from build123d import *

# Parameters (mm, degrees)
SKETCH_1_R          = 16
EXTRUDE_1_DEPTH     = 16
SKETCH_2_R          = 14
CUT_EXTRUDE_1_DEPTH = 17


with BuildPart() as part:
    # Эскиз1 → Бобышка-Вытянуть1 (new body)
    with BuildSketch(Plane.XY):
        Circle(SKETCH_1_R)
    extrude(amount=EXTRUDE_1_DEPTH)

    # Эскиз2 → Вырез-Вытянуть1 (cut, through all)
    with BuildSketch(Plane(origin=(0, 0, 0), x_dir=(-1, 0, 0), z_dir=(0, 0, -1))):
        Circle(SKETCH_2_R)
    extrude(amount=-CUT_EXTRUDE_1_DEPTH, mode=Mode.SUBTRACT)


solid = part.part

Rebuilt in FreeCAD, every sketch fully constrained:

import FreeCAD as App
import Part
import Sketcher

doc = App.newDocument("Part")
params = doc.addObject("Spreadsheet::Sheet", "Params")
for row, (alias, value) in enumerate([
    ("sketch1_diameter", "32 mm"),
    ("pad1_length", "16 mm"),
    ("sketch2_diameter", "28 mm"),
], start=1):
    params.set(f"A{row}", alias)
    params.set(f"B{row}", "=" + value)
    params.setAlias(f"B{row}", alias)

body = doc.addObject("PartDesign::Body", "Body")

# Sketch on XY plane
sketch1 = body.newObject("Sketcher::SketchObject", "Sketch")
sketch1.AttachmentSupport = (doc.getObject("XY_Plane"), [""])
sketch1.MapMode = "FlatFace"
sketch1.addGeometry(Part.Circle(App.Vector(0, 0, 0), App.Vector(0, 0, 1), 16), False)
sketch1.addConstraint(Sketcher.Constraint("Coincident", 0, 3, -1, 1))
sketch1.addConstraint(Sketcher.Constraint("Diameter", 0, 32.0))
sketch1.setExpression("Constraints[1]", "Params.sketch1_diameter")
pad1 = body.newObject("PartDesign::Pad", "Pad")
pad1.Profile = sketch1
pad1.setExpression("Length", "Params.pad1_length")

# Sketch on XY plane
sketch2 = body.newObject("Sketcher::SketchObject", "Sketch001")
sketch2.AttachmentSupport = (doc.getObject("XY_Plane"), [""])
sketch2.MapMode = "FlatFace"
sketch2.addGeometry(Part.Circle(App.Vector(0, 0, 0), App.Vector(0, 0, 1), 14), False)
sketch2.addConstraint(Sketcher.Constraint("Coincident", 0, 3, -1, 1))
sketch2.addConstraint(Sketcher.Constraint("Diameter", 0, 28.0))
sketch2.setExpression("Constraints[1]", "Params.sketch2_diameter")
pocket1 = body.newObject("PartDesign::Pocket", "Pocket")
pocket1.Profile = sketch2
pocket1.Type = "ThroughAll"
pocket1.Reversed = True

doc.recompute()
